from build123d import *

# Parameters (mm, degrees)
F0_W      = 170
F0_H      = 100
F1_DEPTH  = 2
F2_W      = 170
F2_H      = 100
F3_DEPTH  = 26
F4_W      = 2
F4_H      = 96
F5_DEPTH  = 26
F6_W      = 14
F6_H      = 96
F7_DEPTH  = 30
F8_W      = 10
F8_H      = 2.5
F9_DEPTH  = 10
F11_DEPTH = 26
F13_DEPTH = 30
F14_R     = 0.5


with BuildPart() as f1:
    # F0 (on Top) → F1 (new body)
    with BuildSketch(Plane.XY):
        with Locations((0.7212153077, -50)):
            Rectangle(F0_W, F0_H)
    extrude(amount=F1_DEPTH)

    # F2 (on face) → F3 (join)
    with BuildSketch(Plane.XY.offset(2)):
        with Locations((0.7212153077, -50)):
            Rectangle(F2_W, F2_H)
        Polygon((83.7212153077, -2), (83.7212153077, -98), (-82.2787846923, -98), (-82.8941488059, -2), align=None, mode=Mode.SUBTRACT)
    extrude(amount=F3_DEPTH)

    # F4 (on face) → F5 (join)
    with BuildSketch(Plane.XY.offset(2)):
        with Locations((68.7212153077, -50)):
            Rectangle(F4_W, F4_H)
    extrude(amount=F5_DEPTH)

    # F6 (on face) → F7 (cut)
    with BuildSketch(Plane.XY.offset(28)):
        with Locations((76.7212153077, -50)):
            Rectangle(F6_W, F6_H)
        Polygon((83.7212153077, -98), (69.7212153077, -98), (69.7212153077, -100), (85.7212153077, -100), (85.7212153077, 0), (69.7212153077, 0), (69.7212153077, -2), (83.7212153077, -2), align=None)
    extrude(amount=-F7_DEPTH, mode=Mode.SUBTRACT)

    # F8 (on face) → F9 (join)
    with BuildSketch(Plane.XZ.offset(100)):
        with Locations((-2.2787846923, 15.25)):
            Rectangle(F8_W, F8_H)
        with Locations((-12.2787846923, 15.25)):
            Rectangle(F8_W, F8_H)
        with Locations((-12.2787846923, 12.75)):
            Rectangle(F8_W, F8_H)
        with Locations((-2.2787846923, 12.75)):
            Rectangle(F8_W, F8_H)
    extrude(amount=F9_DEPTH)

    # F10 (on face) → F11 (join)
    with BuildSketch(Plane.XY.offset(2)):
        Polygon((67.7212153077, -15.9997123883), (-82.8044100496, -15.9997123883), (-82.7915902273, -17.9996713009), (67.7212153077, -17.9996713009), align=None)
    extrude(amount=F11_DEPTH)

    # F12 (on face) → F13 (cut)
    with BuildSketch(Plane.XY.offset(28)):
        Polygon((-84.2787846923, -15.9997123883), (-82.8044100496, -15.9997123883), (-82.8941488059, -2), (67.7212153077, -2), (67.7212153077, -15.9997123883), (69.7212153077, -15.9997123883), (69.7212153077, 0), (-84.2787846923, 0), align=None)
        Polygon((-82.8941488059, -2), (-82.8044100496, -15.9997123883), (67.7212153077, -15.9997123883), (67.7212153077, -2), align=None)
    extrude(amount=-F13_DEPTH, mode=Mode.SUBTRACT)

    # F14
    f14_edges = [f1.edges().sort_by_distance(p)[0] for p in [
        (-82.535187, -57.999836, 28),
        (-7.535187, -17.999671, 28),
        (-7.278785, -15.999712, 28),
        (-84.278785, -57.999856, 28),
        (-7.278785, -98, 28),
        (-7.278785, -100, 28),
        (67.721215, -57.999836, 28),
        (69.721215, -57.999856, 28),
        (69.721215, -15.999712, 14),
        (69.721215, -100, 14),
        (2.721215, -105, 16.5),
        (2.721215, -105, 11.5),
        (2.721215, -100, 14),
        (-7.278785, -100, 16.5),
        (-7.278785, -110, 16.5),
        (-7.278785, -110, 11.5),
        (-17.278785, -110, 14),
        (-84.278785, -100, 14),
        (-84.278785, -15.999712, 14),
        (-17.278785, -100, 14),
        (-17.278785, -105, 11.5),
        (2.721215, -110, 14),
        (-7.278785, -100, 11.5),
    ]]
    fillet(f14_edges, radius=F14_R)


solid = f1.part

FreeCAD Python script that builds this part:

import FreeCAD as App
import Part
import Sketcher

V = App.Vector


def edges_at(feature, points):
    """Names of the edges that pass closest to the given points."""
    edges = feature.Shape.Edges
    near = lambda p: min(range(len(edges)), key=lambda i: edges[i].distToShape(Part.Vertex(*p))[0])
    return sorted({f"Edge{near(p) + 1}" for p in points})


def add_polygon(sketch, points):
    """Adds a closed chain of lines whose ends are joined by coincident constraints."""
    first, n = sketch.GeometryCount, len(points)
    for a, b in zip(points, points[1:] + points[:1]):
        sketch.addGeometry(Part.LineSegment(App.Vector(*a, 0), App.Vector(*b, 0)), False)
    for i in range(n):
        sketch.addConstraint(Sketcher.Constraint("Coincident", first + i, 2, first + (i + 1) % n, 1))

doc = App.newDocument("Part")
body = doc.addObject("PartDesign::Body", "Body")

# Sketch on XY plane
sketch1 = body.newObject("Sketcher::SketchObject", "Sketch")
sketch1.AttachmentSupport = (doc.getObject("XY_Plane"), [""])
sketch1.MapMode = "FlatFace"
add_polygon(sketch1, [(-84.278785, 0), (-84.278785, -100), (85.721215, -100), (85.721215, 0)])  # lines 0-3
sketch1.addConstraint([
    Sketcher.Constraint("Vertical", 0),
    Sketcher.Constraint("Horizontal", 1),
    Sketcher.Constraint("Vertical", 2),
    Sketcher.Constraint("Horizontal", 3),
    Sketcher.Constraint("PointOnObject", 2, 2, -1),
    Sketcher.Constraint("DistanceX", 1, 1, 1, 2, 170.0),
    Sketcher.Constraint("DistanceY", 0, 2, 0, 1, 100.0),
    Sketcher.Constraint("DistanceX", 0, 2, -1, 1, 84.278785),
])
pad1 = body.newObject("PartDesign::Pad", "Pad")
pad1.Profile = sketch1
pad1.Length = 2

# Sketch on XY plane
sketch2 = body.newObject("Sketcher::SketchObject", "Sketch001")
sketch2.AttachmentSupport = (doc.getObject("XY_Plane"), [""])
sketch2.MapMode = "FlatFace"
sketch2.AttachmentOffset = App.Placement(V(0, 0, 2), App.Rotation())
add_polygon(sketch2, [(-84.278785, 0), (-84.278785, -100), (85.721215, -100), (85.721215, 0)])  # lines 0-3
add_polygon(sketch2, [(-82.894149, -2), (83.721215, -2), (83.721215, -98), (-82.278785, -98)])  # lines 4-7
sketch2.addConstraint([
    Sketcher.Constraint("Vertical", 0),
    Sketcher.Constraint("Horizontal", 1),
    Sketcher.Constraint("Vertical", 2),
    Sketcher.Constraint("Horizontal", 3),
    Sketcher.Constraint("Horizontal", 4),
    Sketcher.Constraint("Vertical", 5),
    Sketcher.Constraint("Horizontal", 6),
    Sketcher.Constraint("PointOnObject", 2, 2, -1),
    Sketcher.Constraint("DistanceX", 1, 1, 1, 2, 170.0),
    Sketcher.Constraint("DistanceX", 6, 2, 6, 1, 166.0),
    Sketcher.Constraint("DistanceY", 0, 2, 0, 1, 100.0),
    Sketcher.Constraint("DistanceY", 5, 2, 5, 1, 96.0),
    Sketcher.Constraint("DistanceY", 4, 2, -1, 1, 2.0),
    Sketcher.Constraint("DistanceX", 4, 2, 2, 2, 2.0),
    Sketcher.Constraint("DistanceX", 4, 1, 4, 2, 166.615364),
    Sketcher.Constraint("DistanceX", 7, 2, -1, 1, 82.894149),
])
pad2 = body.newObject("PartDesign::Pad", "Pad001")
pad2.Profile = sketch2
pad2.Length = 26

# Sketch on XY plane
sketch3 = body.newObject("Sketcher::SketchObject", "Sketch002")
sketch3.AttachmentSupport = (doc.getObject("XY_Plane"), [""])
sketch3.MapMode = "FlatFace"
sketch3.AttachmentOffset = App.Placement(V(0, 0, 2), App.Rotation())
add_polygon(sketch3, [(67.721215, -2), (67.721215, -98), (69.721215, -98), (69.721215, -2)])  # lines 0-3
sketch3.addConstraint([
    Sketcher.Constraint("Vertical", 0),
    Sketcher.Constraint("Horizontal", 1),
    Sketcher.Constraint("Vertical", 2),
    Sketcher.Constraint("Horizontal", 3),
    Sketcher.Constraint("DistanceX", 1, 1, 1, 2, 2.0),
    Sketcher.Constraint("DistanceY", 0, 2, 0, 1, 96.0),
    Sketcher.Constraint("DistanceY", 0, 2, -1, 1, 98.0),
    Sketcher.Constraint("DistanceX", -1, 1, 0, 2, 67.721215),
])
pad3 = body.newObject("PartDesign::Pad", "Pad002")
pad3.Profile = sketch3
pad3.Length = 26

# Sketch on XY plane
sketch4 = body.newObject("Sketcher::SketchObject", "Sketch003")
sketch4.AttachmentSupport = (doc.getObject("XY_Plane"), [""])
sketch4.MapMode = "FlatFace"
sketch4.AttachmentOffset = App.Placement(V(0, 0, 28), App.Rotation())
add_polygon(sketch4, [(69.721215, -100), (85.721215, -100), (85.721215, 0), (69.721215, 0)])  # lines 0-3
sketch4.addConstraint([
    Sketcher.Constraint("Horizontal", 0),
    Sketcher.Constraint("Vertical", 1),
    Sketcher.Constraint("Horizontal", 2),
    Sketcher.Constraint("Vertical", 3),
    Sketcher.Constraint("PointOnObject", 1, 2, -1),
    Sketcher.Constraint("DistanceX", 0, 1, 0, 2, 16.0),
    Sketcher.Constraint("DistanceY", 1, 1, 1, 2, 100.0),
    Sketcher.Constraint("DistanceX", -1, 1, 0, 2, 85.721215),
])
pocket1 = body.newObject("PartDesign::Pocket", "Pocket")
pocket1.Profile = sketch4
pocket1.Length = 30

# Sketch on XZ plane
sketch5 = body.newObject("Sketcher::SketchObject", "Sketch004")
sketch5.AttachmentSupport = (doc.getObject("XZ_Plane"), [""])
sketch5.MapMode = "FlatFace"
sketch5.AttachmentOffset = App.Placement(V(0, 0, 100), App.Rotation())
add_polygon(sketch5, [(2.721215, 16.5), (-17.278785, 16.5), (-17.278785, 11.5), (2.721215, 11.5)])  # lines 0-3
sketch5.addConstraint([
    Sketcher.Constraint("Horizontal", 0),
    Sketcher.Constraint("Vertical", 1),
    Sketcher.Constraint("Horizontal", 2),
    Sketcher.Constraint("Vertical", 3),
    Sketcher.Constraint("DistanceX", 0, 2, 0, 1, 20.0),
    Sketcher.Constraint("DistanceY", 1, 2, 1, 1, 5.0),
    Sketcher.Constraint("DistanceY", -1, 1, 0, 2, 16.5),
    Sketcher.Constraint("DistanceX", 0, 2, -1, 1, 17.278785),
])
pad4 = body.newObject("PartDesign::Pad", "Pad003")
pad4.Profile = sketch5
pad4.Length = 10

# Sketch on XY plane
sketch6 = body.newObject("Sketcher::SketchObject", "Sketch005")
sketch6.AttachmentSupport = (doc.getObject("XY_Plane"), [""])
sketch6.MapMode = "FlatFace"
sketch6.AttachmentOffset = App.Placement(V(0, 0, 2), App.Rotation())
add_polygon(sketch6, [(67.721215, -15.999712), (-82.80441, -15.999712), (-82.79159, -17.999671), (67.721215, -17.999671)])  # lines 0-3
sketch6.addConstraint([
    Sketcher.Constraint("Horizontal", 0),
    Sketcher.Constraint("Horizontal", 2),
    Sketcher.Constraint("Vertical", 3),
    Sketcher.Constraint("Distance", 1, 2.0),
    Sketcher.Constraint("DistanceY", 3, 1, 3, 2, 1.999959),
    Sketcher.Constraint("DistanceX", 0, 2, 0, 1, 150.525625),
    Sketcher.Constraint("DistanceX", 0, 2, -1, 1, 82.80441),
    Sketcher.Constraint("DistanceY", 1, 2, -1, 1, 17.999671),
])
pad5 = body.newObject("PartDesign::Pad", "Pad004")
pad5.Profile = sketch6
pad5.Length = 26

# Sketch on XY plane
sketch7 = body.newObject("Sketcher::SketchObject", "Sketch006")
sketch7.AttachmentSupport = (doc.getObject("XY_Plane"), [""])
sketch7.MapMode = "FlatFace"
sketch7.AttachmentOffset = App.Placement(V(0, 0, 28), App.Rotation())
add_polygon(sketch7, [(-84.278785, -15.999712), (69.721215, -15.999712), (69.721215, 0), (-84.278785, 0)])  # lines 0-3
sketch7.addConstraint([
    Sketcher.Constraint("Horizontal", 0),
    Sketcher.Constraint("Vertical", 1),
    Sketcher.Constraint("Horizontal", 2),
    Sketcher.Constraint("Vertical", 3),
    Sketcher.Constraint("PointOnObject", 1, 2, -1),
    Sketcher.Constraint("DistanceX", 0, 1, 0, 2, 154.0),
    Sketcher.Constraint("DistanceY", 1, 1, 1, 2, 15.999712),
    Sketcher.Constraint("DistanceX", -1, 1, 0, 2, 69.721215),
])
pocket2 = body.newObject("PartDesign::Pocket", "Pocket001")
pocket2.Profile = sketch7
pocket2.Length = 30
doc.recompute()

fillet = body.newObject("PartDesign::Fillet", "Fillet")
fillet.Base = (pocket2, edges_at(pocket2, [
    (-82.535, -58, 28),
    (-7.535, -18, 28),
    (-7.279, -16, 28),
    (-84.279, -58, 28),
    (-7.279, -98, 28),
    (-7.279, -100, 28),
    (67.721, -58, 28),
    (69.721, -58, 28),
    (69.721, -16, 14),
    (69.721, -100, 14),
    (2.721, -105, 16.5),
    (2.721, -105, 11.5),
    (2.721, -100, 14),
    (-7.279, -100, 16.5),
    (-7.279, -110, 16.5),
    (-7.279, -110, 11.5),
    (-17.279, -110, 14),
    (-84.279, -100, 14),
    (-84.279, -16, 14),
    (-17.279, -100, 14),
    (-17.279, -105, 11.5),
    (2.721, -110, 14),
    (-7.279, -100, 11.5),
]))
fillet.Radius = 0.5

doc.recompute()
